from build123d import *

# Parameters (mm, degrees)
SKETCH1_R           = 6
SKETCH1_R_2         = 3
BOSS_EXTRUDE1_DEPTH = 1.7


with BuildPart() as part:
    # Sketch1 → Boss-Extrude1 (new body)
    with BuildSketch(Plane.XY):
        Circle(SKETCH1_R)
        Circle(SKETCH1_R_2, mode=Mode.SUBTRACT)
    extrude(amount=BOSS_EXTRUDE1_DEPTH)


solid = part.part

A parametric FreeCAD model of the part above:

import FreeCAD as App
import Part
import Sketcher

doc = App.newDocument("Part")
params = doc.addObject("Spreadsheet::Sheet", "Params")
for row, (alias, value) in enumerate([
    ("sketch1_diameter", "12 mm"),
    ("sketch1_diameter2", "6 mm"),
    ("pad1_length", "1.7 mm"),
], start=1):
    params.set(f"A{row}", alias)
    params.set(f"B{row}", "=" + value)
    params.setAlias(f"B{row}", alias)

body = doc.addObject("PartDesign::Body", "Body")

# Sketch on XY plane
sketch1 = body.newObject("Sketcher::SketchObject", "Sketch")
sketch1.AttachmentSupport = (doc.getObject("XY_Plane"), [""])
sketch1.MapMode = "FlatFace"
sketch1.addGeometry([
    Part.Circle(App.Vector(0, 0, 0), App.Vector(0, 0, 1), 6),
    Part.Circle(App.Vector(0, 0, 0), App.Vector(0, 0, 1), 3),
], False)
sketch1.addConstraint([
    Sketcher.Constraint("Coincident", 0, 3, -1, 1),
    Sketcher.Constraint("Coincident", 1, 3, -1, 1),
    Sketcher.Constraint("Diameter", 0, 12.0),
    Sketcher.Constraint("Diameter", 1, 6.0),
])
sketch1.setExpression("Constraints[2]", "Params.sketch1_diameter")
sketch1.setExpression("Constraints[3]", "Params.sketch1_diameter2")
pad1 = body.newObject("PartDesign::Pad", "Pad")
pad1.Profile = sketch1
pad1.setExpression("Length", "Params.pad1_length")

doc.recompute()
